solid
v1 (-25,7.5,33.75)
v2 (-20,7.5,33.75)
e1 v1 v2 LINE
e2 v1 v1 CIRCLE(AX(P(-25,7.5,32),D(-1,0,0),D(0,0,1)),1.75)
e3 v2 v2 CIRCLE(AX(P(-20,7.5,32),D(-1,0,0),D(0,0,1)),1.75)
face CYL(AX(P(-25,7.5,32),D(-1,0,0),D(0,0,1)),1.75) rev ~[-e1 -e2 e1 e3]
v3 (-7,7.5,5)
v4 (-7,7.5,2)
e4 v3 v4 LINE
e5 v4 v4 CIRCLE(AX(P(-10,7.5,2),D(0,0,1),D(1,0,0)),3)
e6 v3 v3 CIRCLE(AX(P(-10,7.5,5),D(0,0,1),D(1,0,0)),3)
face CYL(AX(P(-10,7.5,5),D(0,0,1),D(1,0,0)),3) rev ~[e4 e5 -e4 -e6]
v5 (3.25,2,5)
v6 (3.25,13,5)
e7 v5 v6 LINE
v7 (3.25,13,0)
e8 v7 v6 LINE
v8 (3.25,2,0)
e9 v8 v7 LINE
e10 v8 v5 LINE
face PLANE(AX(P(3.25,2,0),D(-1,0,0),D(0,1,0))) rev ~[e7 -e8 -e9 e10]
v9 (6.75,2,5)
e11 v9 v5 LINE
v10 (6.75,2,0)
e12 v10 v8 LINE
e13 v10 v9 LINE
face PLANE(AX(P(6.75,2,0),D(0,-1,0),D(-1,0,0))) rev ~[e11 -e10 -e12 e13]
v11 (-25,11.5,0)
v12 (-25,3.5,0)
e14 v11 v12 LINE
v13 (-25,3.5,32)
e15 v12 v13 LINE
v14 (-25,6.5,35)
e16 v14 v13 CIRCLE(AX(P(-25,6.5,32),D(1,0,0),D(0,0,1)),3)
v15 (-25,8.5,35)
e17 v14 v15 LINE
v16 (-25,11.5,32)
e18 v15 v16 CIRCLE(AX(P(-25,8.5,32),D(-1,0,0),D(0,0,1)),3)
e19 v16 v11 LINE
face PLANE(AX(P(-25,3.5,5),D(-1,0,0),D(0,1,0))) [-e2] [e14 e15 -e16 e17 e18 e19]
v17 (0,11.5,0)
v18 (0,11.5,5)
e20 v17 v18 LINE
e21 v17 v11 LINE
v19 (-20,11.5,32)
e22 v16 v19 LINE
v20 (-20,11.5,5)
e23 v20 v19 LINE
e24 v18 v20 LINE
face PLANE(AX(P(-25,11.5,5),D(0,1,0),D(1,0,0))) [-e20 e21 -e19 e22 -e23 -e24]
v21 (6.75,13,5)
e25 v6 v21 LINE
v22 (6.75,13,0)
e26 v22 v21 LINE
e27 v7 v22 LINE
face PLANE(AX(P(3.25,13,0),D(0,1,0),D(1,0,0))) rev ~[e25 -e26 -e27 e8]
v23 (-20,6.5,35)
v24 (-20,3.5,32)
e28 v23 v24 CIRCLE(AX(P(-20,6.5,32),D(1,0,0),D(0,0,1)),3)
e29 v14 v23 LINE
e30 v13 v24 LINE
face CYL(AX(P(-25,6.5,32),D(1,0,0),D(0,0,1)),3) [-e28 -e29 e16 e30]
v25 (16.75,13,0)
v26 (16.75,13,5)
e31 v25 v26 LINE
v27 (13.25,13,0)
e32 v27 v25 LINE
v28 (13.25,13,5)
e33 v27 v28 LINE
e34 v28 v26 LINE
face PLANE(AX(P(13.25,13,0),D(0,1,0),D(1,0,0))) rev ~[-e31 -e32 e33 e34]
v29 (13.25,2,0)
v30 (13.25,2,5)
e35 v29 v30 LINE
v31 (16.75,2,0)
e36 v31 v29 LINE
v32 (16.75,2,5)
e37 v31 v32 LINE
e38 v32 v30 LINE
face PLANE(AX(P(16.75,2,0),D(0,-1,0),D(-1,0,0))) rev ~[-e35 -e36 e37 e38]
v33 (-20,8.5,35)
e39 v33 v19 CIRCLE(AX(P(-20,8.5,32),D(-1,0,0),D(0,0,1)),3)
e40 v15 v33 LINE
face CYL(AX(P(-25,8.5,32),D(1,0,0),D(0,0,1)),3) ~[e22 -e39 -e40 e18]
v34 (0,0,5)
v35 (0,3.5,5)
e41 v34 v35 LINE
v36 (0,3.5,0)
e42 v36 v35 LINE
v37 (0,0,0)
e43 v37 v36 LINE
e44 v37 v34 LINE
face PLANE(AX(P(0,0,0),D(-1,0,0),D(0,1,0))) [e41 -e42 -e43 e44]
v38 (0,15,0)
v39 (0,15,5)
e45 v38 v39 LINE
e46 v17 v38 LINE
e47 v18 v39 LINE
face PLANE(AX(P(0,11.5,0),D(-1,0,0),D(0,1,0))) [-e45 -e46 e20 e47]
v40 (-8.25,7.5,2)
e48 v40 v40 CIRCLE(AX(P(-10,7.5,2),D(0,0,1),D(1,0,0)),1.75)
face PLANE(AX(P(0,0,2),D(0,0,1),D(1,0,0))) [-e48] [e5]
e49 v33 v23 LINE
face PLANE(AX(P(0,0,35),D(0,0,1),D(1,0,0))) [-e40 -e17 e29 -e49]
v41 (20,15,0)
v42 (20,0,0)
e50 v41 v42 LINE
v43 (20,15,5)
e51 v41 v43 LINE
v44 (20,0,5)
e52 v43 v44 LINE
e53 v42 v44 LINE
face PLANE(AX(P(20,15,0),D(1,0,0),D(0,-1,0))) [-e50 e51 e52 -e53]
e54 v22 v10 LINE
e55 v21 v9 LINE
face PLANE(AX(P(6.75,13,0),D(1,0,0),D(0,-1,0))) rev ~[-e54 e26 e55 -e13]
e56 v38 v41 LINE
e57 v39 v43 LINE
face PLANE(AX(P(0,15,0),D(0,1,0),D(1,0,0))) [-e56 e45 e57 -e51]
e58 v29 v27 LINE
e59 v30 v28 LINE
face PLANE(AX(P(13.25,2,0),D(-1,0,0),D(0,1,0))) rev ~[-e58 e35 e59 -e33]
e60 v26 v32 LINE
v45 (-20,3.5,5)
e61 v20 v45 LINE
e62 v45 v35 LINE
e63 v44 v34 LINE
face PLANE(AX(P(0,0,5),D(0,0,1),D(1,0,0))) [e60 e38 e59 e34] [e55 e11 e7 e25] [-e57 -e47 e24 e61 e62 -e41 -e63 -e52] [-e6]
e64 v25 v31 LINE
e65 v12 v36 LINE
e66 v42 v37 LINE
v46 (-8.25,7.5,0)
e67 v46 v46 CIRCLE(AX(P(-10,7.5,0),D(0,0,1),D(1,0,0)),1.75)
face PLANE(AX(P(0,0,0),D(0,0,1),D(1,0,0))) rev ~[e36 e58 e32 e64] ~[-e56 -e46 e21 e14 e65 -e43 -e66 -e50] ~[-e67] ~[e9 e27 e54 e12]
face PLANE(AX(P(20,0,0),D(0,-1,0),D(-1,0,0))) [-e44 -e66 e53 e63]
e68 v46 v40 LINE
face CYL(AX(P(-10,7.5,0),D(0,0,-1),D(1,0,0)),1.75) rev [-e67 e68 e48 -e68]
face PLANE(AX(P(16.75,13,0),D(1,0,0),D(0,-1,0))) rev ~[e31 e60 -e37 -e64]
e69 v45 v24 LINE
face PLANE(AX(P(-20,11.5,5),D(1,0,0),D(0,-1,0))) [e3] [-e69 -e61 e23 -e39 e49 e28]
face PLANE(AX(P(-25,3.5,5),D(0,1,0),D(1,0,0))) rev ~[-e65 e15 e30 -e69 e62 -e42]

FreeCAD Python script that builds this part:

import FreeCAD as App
import Part
import Sketcher
from FreeCAD import Vector
Q = App.Units.Quantity


def edges_at(feature, points):
    """Names of the edges that pass closest to the given points."""
    edges = feature.Shape.Edges
    near = lambda p: min(range(len(edges)), key=lambda i: edges[i].distToShape(Part.Vertex(*p))[0])
    return sorted({f"Edge{near(p) + 1}" for p in points})

doc = App.newDocument("Part")
body = doc.addObject("PartDesign::Body", "Body")

sketch1 = body.newObject("Sketcher::SketchObject", "Sketch")
sketch1.AttachmentSupport = (doc.getObject("XY_Plane"), [""])
sketch1.MapMode = "FlatFace"
sketch1.addGeometry(Part.LineSegment(Vector(20, 15, 0), Vector(0, 15, 0)), False)
sketch1.addGeometry(Part.LineSegment(Vector(0, 15, 0), Vector(0, 11.5, 0)), False)
sketch1.addGeometry(Part.LineSegment(Vector(0, 11.5, 0), Vector(-25, 11.5, 0)), False)
sketch1.addGeometry(Part.LineSegment(Vector(-25, 11.5, 0), Vector(-25, 3.5, 0)), False)
sketch1.addGeometry(Part.LineSegment(Vector(-25, 3.5, 0), Vector(0, 3.5, 0)), False)
sketch1.addGeometry(Part.LineSegment(Vector(0, 3.5, 0), Vector(0, 0, 0)), False)
sketch1.addGeometry(Part.LineSegment(Vector(0, 0, 0), Vector(20, 0, 0)), False)
sketch1.addGeometry(Part.LineSegment(Vector(20, 0, 0), Vector(20, 15, 0)), False)
sketch1.addGeometry(Part.LineSegment(Vector(3.2, 2, 0), Vector(3.2, 13, 0)), False)
sketch1.addGeometry(Part.LineSegment(Vector(3.2, 13, 0), Vector(6.8, 13, 0)), False)
sketch1.addGeometry(Part.LineSegment(Vector(6.8, 13, 0), Vector(6.8, 2, 0)), False)
sketch1.addGeometry(Part.LineSegment(Vector(6.8, 2, 0), Vector(3.2, 2, 0)), False)
sketch1.addGeometry(Part.LineSegment(Vector(13.2, 2, 0), Vector(13.2, 13, 0)), False)
sketch1.addGeometry(Part.LineSegment(Vector(13.2, 13, 0), Vector(16.8, 13, 0)), False)
sketch1.addGeometry(Part.LineSegment(Vector(16.8, 13, 0), Vector(16.8, 2, 0)), False)
sketch1.addGeometry(Part.LineSegment(Vector(16.8, 2, 0), Vector(13.2, 2, 0)), False)
sketch1.addGeometry(Part.Circle(Vector(-10, 7.5, 0), Vector(0, 0, 1), 1.8), False)
sketch1.addConstraint(Sketcher.Constraint("Coincident", 0, 2, 1, 1))
sketch1.addConstraint(Sketcher.Constraint("Coincident", 1, 2, 2, 1))
sketch1.addConstraint(Sketcher.Constraint("Coincident", 2, 2, 3, 1))
sketch1.addConstraint(Sketcher.Constraint("Coincident", 3, 2, 4, 1))
sketch1.addConstraint(Sketcher.Constraint("Coincident", 4, 2, 5, 1))
sketch1.addConstraint(Sketcher.Constraint("Coincident", 5, 2, 6, 1))
sketch1.addConstraint(Sketcher.Constraint("Coincident", 6, 2, 7, 1))
sketch1.addConstraint(Sketcher.Constraint("Coincident", 7, 2, 0, 1))
sketch1.addConstraint(Sketcher.Constraint("Coincident", 8, 2, 9, 1))
sketch1.addConstraint(Sketcher.Constraint("Coincident", 9, 2, 10, 1))
sketch1.addConstraint(Sketcher.Constraint("Coincident", 10, 2, 11, 1))
sketch1.addConstraint(Sketcher.Constraint("Coincident", 11, 2, 8, 1))
sketch1.addConstraint(Sketcher.Constraint("Coincident", 12, 2, 13, 1))
sketch1.addConstraint(Sketcher.Constraint("Coincident", 13, 2, 14, 1))
sketch1.addConstraint(Sketcher.Constraint("Coincident", 14, 2, 15, 1))
sketch1.addConstraint(Sketcher.Constraint("Coincident", 15, 2, 12, 1))
sketch1.addConstraint(Sketcher.Constraint("Horizontal", 0))
sketch1.addConstraint(Sketcher.Constraint("Vertical", 1))
sketch1.addConstraint(Sketcher.Constraint("Horizontal", 2))
sketch1.addConstraint(Sketcher.Constraint("Vertical", 3))
sketch1.addConstraint(Sketcher.Constraint("Horizontal", 4))
sketch1.addConstraint(Sketcher.Constraint("Vertical", 5))
sketch1.addConstraint(Sketcher.Constraint("Horizontal", 6))
sketch1.addConstraint(Sketcher.Constraint("Vertical", 7))
sketch1.addConstraint(Sketcher.Constraint("Vertical", 8))
sketch1.addConstraint(Sketcher.Constraint("Horizontal", 9))
sketch1.addConstraint(Sketcher.Constraint("Vertical", 10))
sketch1.addConstraint(Sketcher.Constraint("Horizontal", 11))
sketch1.addConstraint(Sketcher.Constraint("Vertical", 12))
sketch1.addConstraint(Sketcher.Constraint("Horizontal", 13))
sketch1.addConstraint(Sketcher.Constraint("Vertical", 14))
sketch1.addConstraint(Sketcher.Constraint("Horizontal", 15))
sketch1.addConstraint(Sketcher.Constraint("Coincident", 5, 2, -1, 1))
sketch1.addConstraint(Sketcher.Constraint("PointOnObject", 0, 2, -2))
sketch1.addConstraint(Sketcher.Constraint("Horizontal", 9, 2, 12, 2))
sketch1.addConstraint(Sketcher.Constraint("Horizontal", 11, 2, 14, 2))
sketch1.addConstraint(Sketcher.Constraint("Equal", 11, 13))
sketch1.addConstraint(Sketcher.Constraint("Equal", 15, 1))
sketch1.addConstraint(Sketcher.Constraint("Equal", 1, 5))
sketch1.addConstraint(Sketcher.Constraint("Diameter", 16, Q("3.5 mm")))
sketch1.addConstraint(Sketcher.Constraint("DistanceX", 0, 2, 0, 1, Q("20 mm")))
sketch1.addConstraint(Sketcher.Constraint("DistanceX", 2, 2, 2, 1, Q("25 mm")))
sketch1.addConstraint(Sketcher.Constraint("DistanceY", 3, 2, 3, 1, Q("8 mm")))
sketch1.addConstraint(Sketcher.Constraint("DistanceY", 7, 1, 7, 2, Q("15 mm")))
sketch1.addConstraint(Sketcher.Constraint("DistanceX", 16, 3, -1, 1, Q("10 mm")))
sketch1.addConstraint(Sketcher.Constraint("DistanceY", -1, 1, 10, 2, Q("2 mm")))
sketch1.addConstraint(Sketcher.Constraint("DistanceY", 8, 2, 0, 2, Q("2 mm")))
sketch1.addConstraint(Sketcher.Constraint("DistanceX", 8, 2, 12, 2, Q("10 mm")))
sketch1.addConstraint(Sketcher.Constraint("DistanceX", -1, 1, 8, 2, Q("3.25 mm")))
sketch1.addConstraint(Sketcher.Constraint("DistanceY", 16, 3, 1, 2, Q("4 mm")))
pad1 = body.newObject("PartDesign::Pad", "Pad")
pad1.Profile = sketch1
pad1.Length = 5

sketch2 = body.newObject("Sketcher::SketchObject", "Sketch001")
sketch2.AttachmentSupport = (doc.getObject("XY_Plane"), [""])
sketch2.MapMode = "FlatFace"
sketch2.AttachmentOffset = App.Placement(Vector(0, 0, 5), App.Rotation())
sketch2.addGeometry(Part.LineSegment(Vector(-25, 12, 0), Vector(-25, 4, 0)), False)
sketch2.addGeometry(Part.LineSegment(Vector(-25, 4, 0), Vector(-20, 4, 0)), False)
sketch2.addGeometry(Part.LineSegment(Vector(-20, 4, 0), Vector(-20, 12, 0)), False)
sketch2.addGeometry(Part.LineSegment(Vector(-20, 12, 0), Vector(-25, 12, 0)), False)
sketch2.addConstraint(Sketcher.Constraint("Coincident", 0, 2, 1, 1))
sketch2.addConstraint(Sketcher.Constraint("Coincident", 1, 2, 2, 1))
sketch2.addConstraint(Sketcher.Constraint("Coincident", 2, 2, 3, 1))
sketch2.addConstraint(Sketcher.Constraint("Coincident", 3, 2, 0, 1))
sketch2.addConstraint(Sketcher.Constraint("Vertical", 0))
sketch2.addConstraint(Sketcher.Constraint("Horizontal", 1))
sketch2.addConstraint(Sketcher.Constraint("Vertical", 2))
sketch2.addConstraint(Sketcher.Constraint("Horizontal", 3))
sketch2.addConstraint(Sketcher.Constraint("DistanceX", 1, 1, 1, 2, Q("5 mm")))
sketch2.addConstraint(Sketcher.Constraint("DistanceY", 0, 2, 0, 1, Q("8 mm")))
sketch2.addConstraint(Sketcher.Constraint("DistanceX", 0, 2, -1, 1, Q("25 mm")))
sketch2.addConstraint(Sketcher.Constraint("DistanceY", -1, 1, 0, 2, Q("3.5 mm")))
pad2 = body.newObject("PartDesign::Pad", "Pad001")
pad2.Profile = sketch2
pad2.Length = 30

sketch3 = body.newObject("Sketcher::SketchObject", "Sketch002")
sketch3.AttachmentSupport = (doc.getObject("YZ_Plane"), [""])
sketch3.MapMode = "FlatFace"
sketch3.AttachmentOffset = App.Placement(Vector(0, 0, -25), App.Rotation())
sketch3.addGeometry(Part.Circle(Vector(7.5, 32, 0), Vector(0, 0, 1), 1.8), False)
sketch3.addConstraint(Sketcher.Constraint("Diameter", 0, Q("3.5 mm")))
sketch3.addConstraint(Sketcher.Constraint("DistanceY", -1, 1, 0, 3, Q("32 mm")))
sketch3.addConstraint(Sketcher.Constraint("DistanceX", -1, 1, 0, 3, Q("7.5 mm")))
pocket1 = body.newObject("PartDesign::Pocket", "Pocket")
pocket1.Profile = sketch3
pocket1.Length = 35
pocket1.Reversed = True
doc.recompute()

fillet = body.newObject("PartDesign::Fillet", "Fillet")
fillet.Base = (pocket1, edges_at(pocket1, [(-22.5, 11.5, 35), (-22.5, 3.5, 35)]))
fillet.Radius = 3

sketch4 = body.newObject("Sketcher::SketchObject", "Sketch003")
sketch4.AttachmentSupport = (doc.getObject("XY_Plane"), [""])
sketch4.MapMode = "FlatFace"
sketch4.AttachmentOffset = App.Placement(Vector(0, 0, 5), App.Rotation())
sketch4.addGeometry(Part.Circle(Vector(-10, 7.5, 0), Vector(0, 0, 1), 3), False)
sketch4.addGeometry(Part.Circle(Vector(-10, 7.5, 0), Vector(0, 0, 1), 1.8), False)
sketch4.addConstraint(Sketcher.Constraint("Coincident", 1, 3, 0, 3))
sketch4.addConstraint(Sketcher.Constraint("Diameter", 0, Q("6 mm")))
sketch4.addConstraint(Sketcher.Constraint("Diameter", 1, Q("3.5 mm")))
sketch4.addConstraint(Sketcher.Constraint("DistanceX", 0, 3, -1, 1, Q("10 mm")))
sketch4.addConstraint(Sketcher.Constraint("DistanceY", -1, 1, 0, 3, Q("7.5 mm")))
pocket2 = body.newObject("PartDesign::Pocket", "Pocket001")
pocket2.Profile = sketch4
pocket2.Length = 3

doc.recompute()
